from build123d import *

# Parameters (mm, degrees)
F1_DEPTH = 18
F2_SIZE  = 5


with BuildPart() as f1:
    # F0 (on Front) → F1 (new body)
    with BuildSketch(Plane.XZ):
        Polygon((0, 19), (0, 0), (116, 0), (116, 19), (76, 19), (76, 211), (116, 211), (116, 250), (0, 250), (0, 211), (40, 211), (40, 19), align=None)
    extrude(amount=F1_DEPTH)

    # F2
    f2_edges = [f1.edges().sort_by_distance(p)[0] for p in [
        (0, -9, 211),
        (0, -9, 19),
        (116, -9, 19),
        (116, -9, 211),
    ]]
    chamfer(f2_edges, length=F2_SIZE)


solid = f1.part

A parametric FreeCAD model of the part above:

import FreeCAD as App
import Part
import Sketcher
Q = App.Units.Quantity


def edges_at(feature, points):
    """Names of the edges that pass closest to the given points."""
    edges = feature.Shape.Edges
    near = lambda p: min(range(len(edges)), key=lambda i: edges[i].distToShape(Part.Vertex(*p))[0])
    return sorted({f"Edge{near(p) + 1}" for p in points})


def add_polygon(sketch, points):
    """Adds a closed chain of lines whose ends are joined by coincident constraints."""
    first, n = sketch.GeometryCount, len(points)
    for a, b in zip(points, points[1:] + points[:1]):
        sketch.addGeometry(Part.LineSegment(App.Vector(*a, 0), App.Vector(*b, 0)), False)
    for i in range(n):
        sketch.addConstraint(Sketcher.Constraint("Coincident", first + i, 2, first + (i + 1) % n, 1))

doc = App.newDocument("Part")
body = doc.addObject("PartDesign::Body", "Body")

sketch1 = body.newObject("Sketcher::SketchObject", "Sketch")
sketch1.AttachmentSupport = (doc.getObject("XZ_Plane"), [""])
sketch1.MapMode = "FlatFace"
add_polygon(sketch1, [(0, 19), (0, 0), (116, 0), (116, 19), (76, 19), (76, 211), (116, 211), (116, 250), (0, 250), (0, 211), (40, 211), (40, 19)])
sketch1.addConstraint(Sketcher.Constraint("Vertical", 0))
sketch1.addConstraint(Sketcher.Constraint("Horizontal", 1))
sketch1.addConstraint(Sketcher.Constraint("Vertical", 2))
sketch1.addConstraint(Sketcher.Constraint("Horizontal", 3))
sketch1.addConstraint(Sketcher.Constraint("Vertical", 4))
sketch1.addConstraint(Sketcher.Constraint("Horizontal", 5))
sketch1.addConstraint(Sketcher.Constraint("Vertical", 6))
sketch1.addConstraint(Sketcher.Constraint("Horizontal", 7))
sketch1.addConstraint(Sketcher.Constraint("Vertical", 8))
sketch1.addConstraint(Sketcher.Constraint("Horizontal", 9))
sketch1.addConstraint(Sketcher.Constraint("Vertical", 10))
sketch1.addConstraint(Sketcher.Constraint("Horizontal", 11))
sketch1.addConstraint(Sketcher.Constraint("Coincident", 0, 2, -1, 1))
sketch1.addConstraint(Sketcher.Constraint("PointOnObject", 7, 2, -2))
sketch1.addConstraint(Sketcher.Constraint("Horizontal", 5, 2, 8, 2))
sketch1.addConstraint(Sketcher.Constraint("Horizontal", 3, 2, 10, 2))
sketch1.addConstraint(Sketcher.Constraint("Vertical", 2, 2, 5, 2))
sketch1.addConstraint(Sketcher.Constraint("Equal", 5, 9))
sketch1.addConstraint(Sketcher.Constraint("DistanceX", 1, 1, 1, 2, Q("116 mm")))
sketch1.addConstraint(Sketcher.Constraint("DistanceX", 3, 2, 3, 1, Q("40 mm")))
sketch1.addConstraint(Sketcher.Constraint("DistanceY", 0, 2, 0, 1, Q("19 mm")))
sketch1.addConstraint(Sketcher.Constraint("DistanceY", 4, 1, 4, 2, Q("192 mm")))
sketch1.addConstraint(Sketcher.Constraint("DistanceY", 6, 1, 6, 2, Q("39 mm")))
pad1 = body.newObject("PartDesign::Pad", "Pad")
pad1.Profile = sketch1
pad1.Length = 18
doc.recompute()

chamfer = body.newObject("PartDesign::Chamfer", "Chamfer")
chamfer.Base = (pad1, edges_at(pad1, [
    (0, -9, 211),
    (0, -9, 19),
    (116, -9, 19),
    (116, -9, 211),
]))
chamfer.Size = 5

doc.recompute()
